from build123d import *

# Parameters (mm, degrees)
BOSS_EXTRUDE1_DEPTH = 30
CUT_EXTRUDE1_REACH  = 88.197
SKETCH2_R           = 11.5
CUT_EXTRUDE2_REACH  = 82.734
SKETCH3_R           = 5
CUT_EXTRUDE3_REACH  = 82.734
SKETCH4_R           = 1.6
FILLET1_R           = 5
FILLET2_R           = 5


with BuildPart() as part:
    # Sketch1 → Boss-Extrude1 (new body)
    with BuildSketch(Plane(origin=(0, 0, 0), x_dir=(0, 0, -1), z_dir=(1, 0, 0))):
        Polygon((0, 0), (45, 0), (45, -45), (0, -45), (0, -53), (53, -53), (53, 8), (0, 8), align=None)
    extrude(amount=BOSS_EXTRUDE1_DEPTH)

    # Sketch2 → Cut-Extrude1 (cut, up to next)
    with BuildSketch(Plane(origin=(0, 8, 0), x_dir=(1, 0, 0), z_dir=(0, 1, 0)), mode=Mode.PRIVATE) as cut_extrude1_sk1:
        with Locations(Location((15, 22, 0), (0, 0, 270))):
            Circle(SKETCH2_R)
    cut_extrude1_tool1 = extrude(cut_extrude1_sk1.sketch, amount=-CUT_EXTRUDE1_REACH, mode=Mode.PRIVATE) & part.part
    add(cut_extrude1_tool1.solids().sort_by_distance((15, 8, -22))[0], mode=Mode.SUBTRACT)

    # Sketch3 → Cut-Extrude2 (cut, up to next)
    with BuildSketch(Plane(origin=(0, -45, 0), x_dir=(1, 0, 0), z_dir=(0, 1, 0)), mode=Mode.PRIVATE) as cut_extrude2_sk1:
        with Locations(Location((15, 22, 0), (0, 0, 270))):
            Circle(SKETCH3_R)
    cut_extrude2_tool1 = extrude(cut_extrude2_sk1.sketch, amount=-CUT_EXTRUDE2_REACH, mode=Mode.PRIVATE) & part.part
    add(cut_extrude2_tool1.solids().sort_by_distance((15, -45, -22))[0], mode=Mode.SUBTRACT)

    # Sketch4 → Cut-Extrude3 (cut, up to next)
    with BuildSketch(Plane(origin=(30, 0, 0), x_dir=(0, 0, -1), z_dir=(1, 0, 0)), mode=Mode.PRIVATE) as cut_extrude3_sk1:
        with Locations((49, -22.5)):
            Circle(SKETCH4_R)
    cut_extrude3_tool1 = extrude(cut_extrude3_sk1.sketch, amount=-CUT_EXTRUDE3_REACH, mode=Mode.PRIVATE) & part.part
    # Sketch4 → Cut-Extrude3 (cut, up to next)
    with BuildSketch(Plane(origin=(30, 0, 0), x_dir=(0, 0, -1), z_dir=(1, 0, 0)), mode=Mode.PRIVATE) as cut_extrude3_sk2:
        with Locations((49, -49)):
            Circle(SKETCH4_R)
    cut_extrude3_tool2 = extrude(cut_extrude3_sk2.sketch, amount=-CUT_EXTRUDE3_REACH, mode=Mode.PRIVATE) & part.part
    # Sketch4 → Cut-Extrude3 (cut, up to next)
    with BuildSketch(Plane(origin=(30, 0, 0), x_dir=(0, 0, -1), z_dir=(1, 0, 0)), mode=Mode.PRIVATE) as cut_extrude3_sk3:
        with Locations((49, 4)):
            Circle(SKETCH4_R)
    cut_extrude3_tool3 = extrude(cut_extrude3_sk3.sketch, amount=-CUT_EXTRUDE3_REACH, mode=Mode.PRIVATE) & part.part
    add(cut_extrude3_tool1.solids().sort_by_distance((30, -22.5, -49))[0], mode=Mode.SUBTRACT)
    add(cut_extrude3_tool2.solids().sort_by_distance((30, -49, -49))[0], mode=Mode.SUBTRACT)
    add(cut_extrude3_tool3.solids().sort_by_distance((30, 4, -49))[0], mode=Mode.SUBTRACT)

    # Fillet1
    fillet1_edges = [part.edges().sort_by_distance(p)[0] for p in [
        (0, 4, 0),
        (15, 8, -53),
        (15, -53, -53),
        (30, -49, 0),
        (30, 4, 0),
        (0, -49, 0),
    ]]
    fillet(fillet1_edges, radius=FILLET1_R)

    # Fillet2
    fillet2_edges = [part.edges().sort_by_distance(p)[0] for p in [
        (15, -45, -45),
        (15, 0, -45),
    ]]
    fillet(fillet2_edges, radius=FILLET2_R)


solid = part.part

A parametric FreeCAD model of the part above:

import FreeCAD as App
import Part
import Sketcher
from FreeCAD import Vector
Q = App.Units.Quantity


def edges_at(feature, points):
    """Names of the edges that pass closest to the given points."""
    edges = feature.Shape.Edges
    near = lambda p: min(range(len(edges)), key=lambda i: edges[i].distToShape(Part.Vertex(*p))[0])
    return sorted({f"Edge{near(p) + 1}" for p in points})


def add_polygon(sketch, points):
    """Adds a closed chain of lines whose ends are joined by coincident constraints."""
    first, n = sketch.GeometryCount, len(points)
    for a, b in zip(points, points[1:] + points[:1]):
        sketch.addGeometry(Part.LineSegment(App.Vector(*a, 0), App.Vector(*b, 0)), False)
    for i in range(n):
        sketch.addConstraint(Sketcher.Constraint("Coincident", first + i, 2, first + (i + 1) % n, 1))

doc = App.newDocument("Part")
body = doc.addObject("PartDesign::Body", "Body")

# Sketch on YZ plane
sketch1 = body.newObject("Sketcher::SketchObject", "Sketch")
sketch1.AttachmentSupport = (doc.getObject("YZ_Plane"), [""])
sketch1.MapMode = "FlatFace"
add_polygon(sketch1, [(0, 0), (0, -45), (-45, -45), (-45, 0), (-53, 0), (-53, -53), (8, -53), (8, 0)])  # lines 0-7
sketch1.addConstraint([
    Sketcher.Constraint("Vertical", 0),
    Sketcher.Constraint("Horizontal", 1),
    Sketcher.Constraint("Vertical", 2),
    Sketcher.Constraint("Horizontal", 3),
    Sketcher.Constraint("Vertical", 4),
    Sketcher.Constraint("Horizontal", 5),
    Sketcher.Constraint("Vertical", 6),
    Sketcher.Constraint("Horizontal", 7),
    Sketcher.Constraint("Coincident", 7, 2, -1, 1),
    Sketcher.Constraint("PointOnObject", 2, 2, -1),
    Sketcher.Constraint("Equal", 3, 7),
    Sketcher.Constraint("Equal", 1, 0),
    Sketcher.Constraint("DistanceX", 1, 2, 1, 1, Q("45 mm")),
    Sketcher.Constraint("DistanceX", 3, 2, 3, 1, Q("8 mm")),
    Sketcher.Constraint("DistanceY", 4, 2, 4, 1, Q("53 mm")),
])
pad1 = body.newObject("PartDesign::Pad", "Pad")
pad1.Profile = sketch1
pad1.Length = 30

# Sketch on XZ plane
sketch2 = body.newObject("Sketcher::SketchObject", "Sketch001")
sketch2.AttachmentSupport = (doc.getObject("XZ_Plane"), [""])
sketch2.MapMode = "FlatFace"
sketch2.AttachmentOffset = App.Placement(Vector(0, 0, -8), App.Rotation())
sketch2.addGeometry(Part.Circle(Vector(15, -22, 0), Vector(0, 0, 1), 12), False)
sketch2.addConstraint([
    Sketcher.Constraint("Diameter", 0, Q("23 mm")),
    Sketcher.Constraint("DistanceX", -1, 1, 0, 3, Q("15 mm")),
    Sketcher.Constraint("DistanceY", 0, 3, -1, 1, Q("22 mm")),
])
pocket1 = body.newObject("PartDesign::Pocket", "Pocket")
pocket1.Profile = sketch2
pocket1.Type = "UpToFirst"
pocket1.Reversed = True

# Sketch on XZ plane
sketch3 = body.newObject("Sketcher::SketchObject", "Sketch002")
sketch3.AttachmentSupport = (doc.getObject("XZ_Plane"), [""])
sketch3.MapMode = "FlatFace"
sketch3.AttachmentOffset = App.Placement(Vector(0, 0, 45), App.Rotation())
sketch3.addGeometry(Part.Circle(Vector(15, -22, 0), Vector(0, 0, 1), 5), False)
sketch3.addConstraint([
    Sketcher.Constraint("Diameter", 0, Q("10 mm")),
    Sketcher.Constraint("DistanceX", -1, 1, 0, 3, Q("15 mm")),
    Sketcher.Constraint("DistanceY", 0, 3, -1, 1, Q("22 mm")),
])
pocket2 = body.newObject("PartDesign::Pocket", "Pocket001")
pocket2.Profile = sketch3
pocket2.Type = "UpToFirst"
pocket2.Reversed = True

# Sketch on YZ plane
sketch4 = body.newObject("Sketcher::SketchObject", "Sketch003")
sketch4.AttachmentSupport = (doc.getObject("YZ_Plane"), [""])
sketch4.MapMode = "FlatFace"
sketch4.AttachmentOffset = App.Placement(Vector(0, 0, 30), App.Rotation())
sketch4.addGeometry(Part.Circle(Vector(-22.5, -49, 0), Vector(0, 0, 1), 1.6), False)
sketch4.addConstraint([
    Sketcher.Constraint("Diameter", 0, Q("3.2 mm")),
    Sketcher.Constraint("DistanceY", 0, 3, -1, 1, Q("49 mm")),
    Sketcher.Constraint("DistanceX", 0, 3, -1, 1, Q("22.5 mm")),
])
pocket3 = body.newObject("PartDesign::Pocket", "Pocket002")
pocket3.Profile = sketch4
pocket3.Type = "UpToFirst"

# Sketch on YZ plane
sketch5 = body.newObject("Sketcher::SketchObject", "Sketch004")
sketch5.AttachmentSupport = (doc.getObject("YZ_Plane"), [""])
sketch5.MapMode = "FlatFace"
sketch5.AttachmentOffset = App.Placement(Vector(0, 0, 30), App.Rotation())
sketch5.addGeometry(Part.Circle(Vector(-49, -49, 0), Vector(0, 0, 1), 1.6), False)
sketch5.addConstraint([
    Sketcher.Constraint("Diameter", 0, Q("3.2 mm")),
    Sketcher.Constraint("DistanceX", 0, 3, -1, 1, Q("49 mm")),
    Sketcher.Constraint("DistanceY", 0, 3, -1, 1, Q("49 mm")),
])
pocket4 = body.newObject("PartDesign::Pocket", "Pocket003")
pocket4.Profile = sketch5
pocket4.Type = "UpToFirst"

# Sketch on YZ plane
sketch6 = body.newObject("Sketcher::SketchObject", "Sketch005")
sketch6.AttachmentSupport = (doc.getObject("YZ_Plane"), [""])
sketch6.MapMode = "FlatFace"
sketch6.AttachmentOffset = App.Placement(Vector(0, 0, 30), App.Rotation())
sketch6.addGeometry(Part.Circle(Vector(4, -49, 0), Vector(0, 0, 1), 1.6), False)
sketch6.addConstraint([
    Sketcher.Constraint("Diameter", 0, Q("3.2 mm")),
    Sketcher.Constraint("DistanceX", -1, 1, 0, 3, Q("4 mm")),
    Sketcher.Constraint("DistanceY", 0, 3, -1, 1, Q("49 mm")),
])
pocket5 = body.newObject("PartDesign::Pocket", "Pocket004")
pocket5.Profile = sketch6
pocket5.Type = "UpToFirst"
doc.recompute()

fillet = body.newObject("PartDesign::Fillet", "Fillet")
fillet.Base = (pocket5, edges_at(pocket5, [
    (0, 4, 0),
    (15, 8, -53),
    (15, -53, -53),
    (30, -49, 0),
    (30, 4, 0),
    (0, -49, 0),
]))
fillet.Radius = 5
doc.recompute()

fillet2 = body.newObject("PartDesign::Fillet", "Fillet001")
fillet2.Base = (fillet, edges_at(fillet, [(15, -45, -45), (15, 0, -45)]))
fillet2.Radius = 5

doc.recompute()
